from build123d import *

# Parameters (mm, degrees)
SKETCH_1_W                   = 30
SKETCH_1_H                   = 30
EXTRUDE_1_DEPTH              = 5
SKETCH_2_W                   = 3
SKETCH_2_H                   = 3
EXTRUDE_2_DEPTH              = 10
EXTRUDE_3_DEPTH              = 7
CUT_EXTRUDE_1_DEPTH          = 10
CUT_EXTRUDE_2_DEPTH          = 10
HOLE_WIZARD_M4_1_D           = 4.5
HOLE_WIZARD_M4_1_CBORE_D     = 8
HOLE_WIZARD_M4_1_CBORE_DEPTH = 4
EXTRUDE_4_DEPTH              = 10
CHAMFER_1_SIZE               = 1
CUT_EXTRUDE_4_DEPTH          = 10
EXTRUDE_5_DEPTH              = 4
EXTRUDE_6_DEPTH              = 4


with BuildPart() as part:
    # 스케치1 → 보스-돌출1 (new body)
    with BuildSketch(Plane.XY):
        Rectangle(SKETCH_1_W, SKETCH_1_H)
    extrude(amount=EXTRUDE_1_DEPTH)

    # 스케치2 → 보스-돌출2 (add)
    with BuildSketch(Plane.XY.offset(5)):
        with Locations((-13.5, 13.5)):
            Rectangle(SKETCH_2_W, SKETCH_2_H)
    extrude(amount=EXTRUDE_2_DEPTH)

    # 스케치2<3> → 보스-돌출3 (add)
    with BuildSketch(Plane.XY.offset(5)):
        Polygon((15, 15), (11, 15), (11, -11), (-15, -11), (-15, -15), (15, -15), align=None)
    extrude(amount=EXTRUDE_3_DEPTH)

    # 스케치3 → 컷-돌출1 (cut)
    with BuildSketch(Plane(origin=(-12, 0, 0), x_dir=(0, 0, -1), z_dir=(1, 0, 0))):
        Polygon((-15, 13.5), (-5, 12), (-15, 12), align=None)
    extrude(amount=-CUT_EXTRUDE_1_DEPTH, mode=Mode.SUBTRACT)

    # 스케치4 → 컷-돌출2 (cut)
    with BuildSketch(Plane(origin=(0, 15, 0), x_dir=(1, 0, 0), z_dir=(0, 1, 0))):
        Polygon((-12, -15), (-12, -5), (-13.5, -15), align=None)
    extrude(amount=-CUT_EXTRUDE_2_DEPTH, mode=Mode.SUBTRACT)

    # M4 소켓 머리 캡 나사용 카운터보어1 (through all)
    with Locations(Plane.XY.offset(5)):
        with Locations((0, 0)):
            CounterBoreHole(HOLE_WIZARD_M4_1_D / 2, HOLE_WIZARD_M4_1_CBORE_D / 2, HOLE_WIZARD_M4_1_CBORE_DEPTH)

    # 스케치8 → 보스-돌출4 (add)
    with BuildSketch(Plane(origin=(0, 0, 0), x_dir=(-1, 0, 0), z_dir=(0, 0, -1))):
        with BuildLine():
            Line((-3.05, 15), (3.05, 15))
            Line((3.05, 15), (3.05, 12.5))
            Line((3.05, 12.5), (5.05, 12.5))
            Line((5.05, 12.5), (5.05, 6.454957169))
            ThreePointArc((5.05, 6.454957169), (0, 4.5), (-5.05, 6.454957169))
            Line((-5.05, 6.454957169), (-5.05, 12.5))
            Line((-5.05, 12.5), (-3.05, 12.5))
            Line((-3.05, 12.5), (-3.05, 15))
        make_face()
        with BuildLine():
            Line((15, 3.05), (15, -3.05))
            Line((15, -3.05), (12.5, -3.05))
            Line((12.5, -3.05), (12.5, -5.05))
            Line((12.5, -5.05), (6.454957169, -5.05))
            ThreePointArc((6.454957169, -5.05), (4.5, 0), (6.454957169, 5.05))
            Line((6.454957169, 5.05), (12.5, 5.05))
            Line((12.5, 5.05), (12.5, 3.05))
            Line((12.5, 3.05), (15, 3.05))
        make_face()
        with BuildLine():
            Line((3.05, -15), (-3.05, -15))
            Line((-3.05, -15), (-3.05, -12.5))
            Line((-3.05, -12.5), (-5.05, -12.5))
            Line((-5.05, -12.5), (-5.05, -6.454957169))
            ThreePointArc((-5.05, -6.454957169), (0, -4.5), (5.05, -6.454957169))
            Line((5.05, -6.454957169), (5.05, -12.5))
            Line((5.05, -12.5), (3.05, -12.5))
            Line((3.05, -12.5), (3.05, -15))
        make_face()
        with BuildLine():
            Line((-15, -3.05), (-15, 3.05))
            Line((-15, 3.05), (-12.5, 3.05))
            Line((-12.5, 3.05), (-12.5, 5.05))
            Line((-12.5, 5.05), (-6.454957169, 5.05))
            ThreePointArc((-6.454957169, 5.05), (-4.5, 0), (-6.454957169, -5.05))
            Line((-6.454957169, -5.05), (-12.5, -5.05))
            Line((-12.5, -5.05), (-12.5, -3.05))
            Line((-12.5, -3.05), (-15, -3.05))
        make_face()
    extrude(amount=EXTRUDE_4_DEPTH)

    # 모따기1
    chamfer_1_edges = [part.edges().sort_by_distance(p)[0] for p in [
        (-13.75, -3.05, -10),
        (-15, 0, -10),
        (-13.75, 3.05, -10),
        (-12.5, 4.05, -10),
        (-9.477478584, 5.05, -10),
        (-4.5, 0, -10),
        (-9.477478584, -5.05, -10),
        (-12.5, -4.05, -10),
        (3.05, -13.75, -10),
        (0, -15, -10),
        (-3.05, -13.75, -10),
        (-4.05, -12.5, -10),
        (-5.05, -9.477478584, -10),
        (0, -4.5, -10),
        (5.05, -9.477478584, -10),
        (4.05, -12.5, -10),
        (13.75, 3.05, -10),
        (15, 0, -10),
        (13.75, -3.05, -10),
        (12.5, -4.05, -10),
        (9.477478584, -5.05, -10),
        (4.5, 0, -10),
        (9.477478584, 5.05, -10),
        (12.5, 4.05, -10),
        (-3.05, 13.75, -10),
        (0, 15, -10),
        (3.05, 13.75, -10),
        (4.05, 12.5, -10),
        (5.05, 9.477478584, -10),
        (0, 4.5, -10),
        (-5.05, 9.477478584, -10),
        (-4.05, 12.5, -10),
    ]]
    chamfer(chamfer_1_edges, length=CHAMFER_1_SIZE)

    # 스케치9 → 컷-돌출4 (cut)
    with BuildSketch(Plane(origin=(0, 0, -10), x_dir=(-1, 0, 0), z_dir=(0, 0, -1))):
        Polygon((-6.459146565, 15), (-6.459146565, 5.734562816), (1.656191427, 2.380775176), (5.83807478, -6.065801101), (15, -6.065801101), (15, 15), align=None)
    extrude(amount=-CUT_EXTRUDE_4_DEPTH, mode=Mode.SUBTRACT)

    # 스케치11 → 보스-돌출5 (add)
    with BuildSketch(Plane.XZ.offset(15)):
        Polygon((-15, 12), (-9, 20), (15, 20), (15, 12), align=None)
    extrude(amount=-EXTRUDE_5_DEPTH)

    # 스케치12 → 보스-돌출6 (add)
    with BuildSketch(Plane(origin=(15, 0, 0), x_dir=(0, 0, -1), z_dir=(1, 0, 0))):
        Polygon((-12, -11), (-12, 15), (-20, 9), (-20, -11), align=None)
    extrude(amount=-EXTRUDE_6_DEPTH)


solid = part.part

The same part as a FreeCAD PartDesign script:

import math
import FreeCAD as App
import Part
import Sketcher
from FreeCAD import Vector
Q = App.Units.Quantity


def edges_at(feature, points):
    """Names of the edges that pass closest to the given points."""
    edges = feature.Shape.Edges
    near = lambda p: min(range(len(edges)), key=lambda i: edges[i].distToShape(Part.Vertex(*p))[0])
    return sorted({f"Edge{near(p) + 1}" for p in points})


def add_polygon(sketch, points):
    """Adds a closed chain of lines whose ends are joined by coincident constraints."""
    first, n = sketch.GeometryCount, len(points)
    for a, b in zip(points, points[1:] + points[:1]):
        sketch.addGeometry(Part.LineSegment(App.Vector(*a, 0), App.Vector(*b, 0)), False)
    for i in range(n):
        sketch.addConstraint(Sketcher.Constraint("Coincident", first + i, 2, first + (i + 1) % n, 1))

doc = App.newDocument("Part")
body = doc.addObject("PartDesign::Body", "Body")

# Sketch on XY plane
sketch1 = body.newObject("Sketcher::SketchObject", "Sketch")
sketch1.AttachmentSupport = (doc.getObject("XY_Plane"), [""])
sketch1.MapMode = "FlatFace"
add_polygon(sketch1, [(-15, 15), (-15, -15), (15, -15), (15, 15)])  # lines 0-3
sketch1.addConstraint([
    Sketcher.Constraint("Vertical", 0),
    Sketcher.Constraint("Horizontal", 1),
    Sketcher.Constraint("Vertical", 2),
    Sketcher.Constraint("Horizontal", 3),
    Sketcher.Constraint("Symmetric", 0, 2, 2, 2, -1, 1),
    Sketcher.Constraint("Equal", 3, 0),
    Sketcher.Constraint("DistanceX", 1, 1, 1, 2, Q("30 mm")),
])
pad1 = body.newObject("PartDesign::Pad", "Pad")
pad1.Profile = sketch1
pad1.Length = 5

# Sketch on XY plane
sketch2 = body.newObject("Sketcher::SketchObject", "Sketch001")
sketch2.AttachmentSupport = (doc.getObject("XY_Plane"), [""])
sketch2.MapMode = "FlatFace"
sketch2.AttachmentOffset = App.Placement(Vector(0, 0, 5), App.Rotation())
add_polygon(sketch2, [(-15, 15), (-15, 12), (-12, 12), (-12, 15)])  # lines 0-3
sketch2.addConstraint([
    Sketcher.Constraint("Vertical", 0),
    Sketcher.Constraint("Horizontal", 1),
    Sketcher.Constraint("Vertical", 2),
    Sketcher.Constraint("Horizontal", 3),
    Sketcher.Constraint("Equal", 3, 0),
    Sketcher.Constraint("DistanceX", 1, 1, 1, 2, Q("3 mm")),
    Sketcher.Constraint("DistanceX", 0, 2, -1, 1, Q("15 mm")),
    Sketcher.Constraint("DistanceY", -1, 1, 0, 2, Q("12 mm")),
])
pad2 = body.newObject("PartDesign::Pad", "Pad001")
pad2.Profile = sketch2
pad2.Length = 10

# Sketch on XY plane
sketch3 = body.newObject("Sketcher::SketchObject", "Sketch002")
sketch3.AttachmentSupport = (doc.getObject("XY_Plane"), [""])
sketch3.MapMode = "FlatFace"
sketch3.AttachmentOffset = App.Placement(Vector(0, 0, 5), App.Rotation())
add_polygon(sketch3, [(15, 15), (11, 15), (11, -11), (-15, -11), (-15, -15), (15, -15)])  # lines 0-5
sketch3.addConstraint([
    Sketcher.Constraint("Horizontal", 0),
    Sketcher.Constraint("Vertical", 1),
    Sketcher.Constraint("Horizontal", 2),
    Sketcher.Constraint("Vertical", 3),
    Sketcher.Constraint("Horizontal", 4),
    Sketcher.Constraint("Vertical", 5),
    Sketcher.Constraint("Symmetric", 3, 2, 5, 2, -1, 1),
    Sketcher.Constraint("Equal", 2, 1),
    Sketcher.Constraint("Equal", 0, 3),
    Sketcher.Constraint("DistanceX", 0, 2, 0, 1, Q("4 mm")),
    Sketcher.Constraint("DistanceX", 2, 2, 2, 1, Q("26 mm")),
])
pad3 = body.newObject("PartDesign::Pad", "Pad002")
pad3.Profile = sketch3
pad3.Length = 7

# Sketch on YZ plane
sketch4 = body.newObject("Sketcher::SketchObject", "Sketch003")
sketch4.AttachmentSupport = (doc.getObject("YZ_Plane"), [""])
sketch4.MapMode = "FlatFace"
sketch4.AttachmentOffset = App.Placement(Vector(0, 0, -12), App.Rotation())
add_polygon(sketch4, [(12, 5), (13.5, 15), (12, 15)])  # lines 0-2
sketch4.addConstraint([
    Sketcher.Constraint("Horizontal", 1),
    Sketcher.Constraint("Vertical", 2),
    Sketcher.Constraint("DistanceY", 2, 2, 2, 1, Q("10 mm")),
    Sketcher.Constraint("DistanceX", 1, 2, 1, 1, Q("1.5 mm")),
    Sketcher.Constraint("DistanceY", -1, 1, 0, 2, Q("15 mm")),
    Sketcher.Constraint("DistanceX", -1, 1, 1, 2, Q("12 mm")),
])
pocket1 = body.newObject("PartDesign::Pocket", "Pocket")
pocket1.Profile = sketch4
pocket1.Length = 10

# Sketch on XZ plane
sketch5 = body.newObject("Sketcher::SketchObject", "Sketch004")
sketch5.AttachmentSupport = (doc.getObject("XZ_Plane"), [""])
sketch5.MapMode = "FlatFace"
sketch5.AttachmentOffset = App.Placement(Vector(0, 0, -15), App.Rotation())
add_polygon(sketch5, [(-12, 15), (-12, 5), (-13.5, 15)])  # lines 0-2
sketch5.addConstraint([
    Sketcher.Constraint("Vertical", 0),
    Sketcher.Constraint("Horizontal", 2),
    Sketcher.Constraint("DistanceY", 0, 2, 0, 1, Q("10 mm")),
    Sketcher.Constraint("DistanceX", 2, 1, 2, 2, Q("1.5 mm")),
    Sketcher.Constraint("DistanceX", 0, 2, -1, 1, Q("12 mm")),
    Sketcher.Constraint("DistanceY", -1, 1, 0, 2, Q("5 mm")),
])
pocket2 = body.newObject("PartDesign::Pocket", "Pocket001")
pocket2.Profile = sketch5
pocket2.Length = 10
pocket2.Reversed = True

# Sketch on XY plane
sketch6 = body.newObject("Sketcher::SketchObject", "Sketch005")
sketch6.AttachmentSupport = (doc.getObject("XY_Plane"), [""])
sketch6.MapMode = "FlatFace"
sketch6.AttachmentOffset = App.Placement(Vector(0, 0, 5), App.Rotation())
sketch6.addGeometry(Part.Circle(Vector(0, 0, 0), Vector(0, 0, 1), 2.2), False)
sketch6.addConstraint([
    Sketcher.Constraint("Coincident", 0, 3, -1, 1),
    Sketcher.Constraint("Diameter", 0, Q("4.5 mm")),
])
doc.recompute()
hole = body.newObject("PartDesign::Hole", "Hole")
hole.Profile = sketch6
hole.ThreadType = "None"
hole.Diameter = 4.5
hole.DepthType = "ThroughAll"
hole.HoleCutType = "Counterbore"
hole.HoleCutDiameter = 8
hole.HoleCutDepth = 4

# Sketch on XY plane
sketch7 = body.newObject("Sketcher::SketchObject", "Sketch006")
sketch7.AttachmentSupport = (doc.getObject("XY_Plane"), [""])
sketch7.MapMode = "FlatFace"
sketch7.addGeometry([
    Part.LineSegment(Vector(-3, 15, 0), Vector(3, 15, 0)),  # 0
    Part.LineSegment(Vector(3, 15, 0), Vector(3, 12.5, 0)),  # 1
    Part.LineSegment(Vector(3, 12.5, 0), Vector(5, 12.5, 0)),  # 2
    Part.LineSegment(Vector(5, 12.5, 0), Vector(5, 6.5, 0)),  # 3
    Part.ArcOfCircle(Part.Circle(Vector(0, 12, 0), Vector(0, 0, 1), 7.5), math.radians(-132), math.radians(-48)),  # 4
    Part.LineSegment(Vector(-5, 6.5, 0), Vector(-5, 12.5, 0)),  # 5
    Part.LineSegment(Vector(-5, 12.5, 0), Vector(-3, 12.5, 0)),  # 6
    Part.LineSegment(Vector(-3, 12.5, 0), Vector(-3, 15, 0)),  # 7
    Part.LineSegment(Vector(-15, -3, 0), Vector(-15, 3, 0)),  # 8
    Part.LineSegment(Vector(-15, 3, 0), Vector(-12.5, 3, 0)),  # 9
    Part.LineSegment(Vector(-12.5, 3, 0), Vector(-12.5, 5, 0)),  # 10
    Part.LineSegment(Vector(-12.5, 5, 0), Vector(-6.5, 5, 0)),  # 11
    Part.ArcOfCircle(Part.Circle(Vector(-12, 0, 0), Vector(0, 0, 1), 7.5), math.radians(-42), math.radians(42)),  # 12
    Part.LineSegment(Vector(-6.5, -5, 0), Vector(-12.5, -5, 0)),  # 13
    Part.LineSegment(Vector(-12.5, -5, 0), Vector(-12.5, -3, 0)),  # 14
    Part.LineSegment(Vector(-12.5, -3, 0), Vector(-15, -3, 0)),  # 15
    Part.LineSegment(Vector(3, -15, 0), Vector(-3, -15, 0)),  # 16
    Part.LineSegment(Vector(-3, -15, 0), Vector(-3, -12.5, 0)),  # 17
    Part.LineSegment(Vector(-3, -12.5, 0), Vector(-5, -12.5, 0)),  # 18
    Part.LineSegment(Vector(-5, -12.5, 0), Vector(-5, -6.5, 0)),  # 19
    Part.ArcOfCircle(Part.Circle(Vector(0, -12, 0), Vector(0, 0, 1), 7.5), math.radians(48), math.radians(132)),  # 20
    Part.LineSegment(Vector(5, -6.5, 0), Vector(5, -12.5, 0)),  # 21
    Part.LineSegment(Vector(5, -12.5, 0), Vector(3, -12.5, 0)),  # 22
    Part.LineSegment(Vector(3, -12.5, 0), Vector(3, -15, 0)),  # 23
    Part.LineSegment(Vector(15, 3, 0), Vector(15, -3, 0)),  # 24
    Part.LineSegment(Vector(15, -3, 0), Vector(12.5, -3, 0)),  # 25
    Part.LineSegment(Vector(12.5, -3, 0), Vector(12.5, -5, 0)),  # 26
    Part.LineSegment(Vector(12.5, -5, 0), Vector(6.5, -5, 0)),  # 27
    Part.ArcOfCircle(Part.Circle(Vector(12, 0, 0), Vector(0, 0, 1), 7.5), math.radians(138), math.radians(222)),  # 28
    Part.LineSegment(Vector(6.5, 5, 0), Vector(12.5, 5, 0)),  # 29
    Part.LineSegment(Vector(12.5, 5, 0), Vector(12.5, 3, 0)),  # 30
    Part.LineSegment(Vector(12.5, 3, 0), Vector(15, 3, 0)),  # 31
], False)
sketch7.addConstraint([
    Sketcher.Constraint("Coincident", 0, 2, 1, 1),
    Sketcher.Constraint("Coincident", 1, 2, 2, 1),
    Sketcher.Constraint("Coincident", 2, 2, 3, 1),
    Sketcher.Constraint("Coincident", 3, 2, 4, 2),
    Sketcher.Constraint("Coincident", 4, 1, 5, 1),
    Sketcher.Constraint("Coincident", 5, 2, 6, 1),
    Sketcher.Constraint("Coincident", 6, 2, 7, 1),
    Sketcher.Constraint("Coincident", 7, 2, 0, 1),
    Sketcher.Constraint("Coincident", 8, 2, 9, 1),
    Sketcher.Constraint("Coincident", 9, 2, 10, 1),
    Sketcher.Constraint("Coincident", 10, 2, 11, 1),
    Sketcher.Constraint("Coincident", 11, 2, 12, 2),
    Sketcher.Constraint("Coincident", 12, 1, 13, 1),
    Sketcher.Constraint("Coincident", 13, 2, 14, 1),
    Sketcher.Constraint("Coincident", 14, 2, 15, 1),
    Sketcher.Constraint("Coincident", 15, 2, 8, 1),
    Sketcher.Constraint("Coincident", 16, 2, 17, 1),
    Sketcher.Constraint("Coincident", 17, 2, 18, 1),
    Sketcher.Constraint("Coincident", 18, 2, 19, 1),
    Sketcher.Constraint("Coincident", 19, 2, 20, 2),
    Sketcher.Constraint("Coincident", 20, 1, 21, 1),
    Sketcher.Constraint("Coincident", 21, 2, 22, 1),
    Sketcher.Constraint("Coincident", 22, 2, 23, 1),
    Sketcher.Constraint("Coincident", 23, 2, 16, 1),
    Sketcher.Constraint("Coincident", 24, 2, 25, 1),
    Sketcher.Constraint("Coincident", 25, 2, 26, 1),
    Sketcher.Constraint("Coincident", 26, 2, 27, 1),
    Sketcher.Constraint("Coincident", 27, 2, 28, 2),
    Sketcher.Constraint("Coincident", 28, 1, 29, 1),
    Sketcher.Constraint("Coincident", 29, 2, 30, 1),
    Sketcher.Constraint("Coincident", 30, 2, 31, 1),
    Sketcher.Constraint("Coincident", 31, 2, 24, 1),
    Sketcher.Constraint("Horizontal", 0),
    Sketcher.Constraint("Vertical", 1),
    Sketcher.Constraint("Horizontal", 2),
    Sketcher.Constraint("Vertical", 3),
    Sketcher.Constraint("Vertical", 5),
    Sketcher.Constraint("Horizontal", 6),
    Sketcher.Constraint("Vertical", 7),
    Sketcher.Constraint("Vertical", 8),
    Sketcher.Constraint("Horizontal", 9),
    Sketcher.Constraint("Vertical", 10),
    Sketcher.Constraint("Horizontal", 11),
    Sketcher.Constraint("Horizontal", 13),
    Sketcher.Constraint("Vertical", 14),
    Sketcher.Constraint("Horizontal", 15),
    Sketcher.Constraint("Horizontal", 16),
    Sketcher.Constraint("Vertical", 17),
    Sketcher.Constraint("Horizontal", 18),
    Sketcher.Constraint("Vertical", 19),
    Sketcher.Constraint("Vertical", 21),
    Sketcher.Constraint("Horizontal", 22),
    Sketcher.Constraint("Vertical", 23),
    Sketcher.Constraint("Vertical", 24),
    Sketcher.Constraint("Horizontal", 25),
    Sketcher.Constraint("Vertical", 26),
    Sketcher.Constraint("Horizontal", 27),
    Sketcher.Constraint("Horizontal", 29),
    Sketcher.Constraint("Vertical", 30),
    Sketcher.Constraint("Horizontal", 31),
    Sketcher.Constraint("Equal", 4, 12),
    Sketcher.Constraint("Equal", 12, 20),
    Sketcher.Constraint("Equal", 20, 28),
    Sketcher.Constraint("Symmetric", 4, 3, 20, 3, -1, 1),
    Sketcher.Constraint("Symmetric", 12, 3, 28, 3, -1, 1),
    Sketcher.Constraint("Symmetric", 0, 2, 16, 2, -1, 1),
    Sketcher.Constraint("Symmetric", 2, 2, 18, 2, -1, 1),
    Sketcher.Constraint("Symmetric", 5, 2, 21, 2, -1, 1),
    Sketcher.Constraint("Symmetric", 8, 2, 24, 2, -1, 1),
    Sketcher.Constraint("Symmetric", 10, 2, 26, 2, -1, 1),
    Sketcher.Constraint("Symmetric", 13, 2, 29, 2, -1, 1),
    Sketcher.Constraint("Symmetric", 3, 2, 4, 1, -2),
    Sketcher.Constraint("Symmetric", 1, 2, 6, 2, -2),
    Sketcher.Constraint("Symmetric", 14, 2, 25, 2, -2),
    Sketcher.Constraint("Symmetric", 12, 1, 27, 2, -2),
    Sketcher.Constraint("Horizontal", 9, 2, 30, 2),
    Sketcher.Constraint("Vertical", 1, 2, 22, 2),
    Sketcher.Constraint("Equal", 31, 1),
    Sketcher.Constraint("Equal", 29, 3),
    Sketcher.Constraint("Equal", 16, 8),
    Sketcher.Constraint("Equal", 22, 10),
    Sketcher.Constraint("Radius", 4, Q("7.5 mm")),
    Sketcher.Constraint("DistanceX", 2, 1, 2, 2, Q("2 mm")),
    Sketcher.Constraint("DistanceX", 0, 1, 0, 2, Q("6.1 mm")),
    Sketcher.Constraint("DistanceX", 9, 1, 9, 2, Q("2.5 mm")),
    Sketcher.Constraint("DistanceY", -1, 1, 4, 3, Q("12 mm")),
    Sketcher.Constraint("DistanceX", 12, 3, -1, 1, Q("12 mm")),
    Sketcher.Constraint("DistanceY", -1, 1, 0, 2, Q("15 mm")),
])
pad4 = body.newObject("PartDesign::Pad", "Pad003")
pad4.Profile = sketch7
pad4.Length = 10
pad4.Reversed = True
doc.recompute()

chamfer = body.newObject("PartDesign::Chamfer", "Chamfer")
chamfer.Base = (pad4, edges_at(pad4, [
    (-13.75, -3.05, -10),
    (-15, 0, -10),
    (-13.75, 3.05, -10),
    (-12.5, 4.05, -10),
    (-9.477, 5.05, -10),
    (-4.5, 0, -10),
    (-9.477, -5.05, -10),
    (-12.5, -4.05, -10),
    (3.05, -13.75, -10),
    (0, -15, -10),
    (-3.05, -13.75, -10),
    (-4.05, -12.5, -10),
    (-5.05, -9.477, -10),
    (0, -4.5, -10),
    (5.05, -9.477, -10),
    (4.05, -12.5, -10),
    (13.75, 3.05, -10),
    (15, 0, -10),
    (13.75, -3.05, -10),
    (12.5, -4.05, -10),
    (9.477, -5.05, -10),
    (4.5, 0, -10),
    (9.477, 5.05, -10),
    (12.5, 4.05, -10),
    (-3.05, 13.75, -10),
    (0, 15, -10),
    (3.05, 13.75, -10),
    (4.05, 12.5, -10),
    (5.05, 9.477, -10),
    (0, 4.5, -10),
    (-5.05, 9.477, -10),
    (-4.05, 12.5, -10),
]))
chamfer.Size = 1

# Sketch on XY plane
sketch8 = body.newObject("Sketcher::SketchObject", "Sketch007")
sketch8.AttachmentSupport = (doc.getObject("XY_Plane"), [""])
sketch8.MapMode = "FlatFace"
sketch8.AttachmentOffset = App.Placement(Vector(0, 0, -10), App.Rotation())
add_polygon(sketch8, [(6, 15), (6, 6), (-2, 2), (-6, -6), (-15, -6), (-15, 15)])  # lines 0-5
sketch8.addConstraint([
    Sketcher.Constraint("Vertical", 0),
    Sketcher.Constraint("Horizontal", 3),
    Sketcher.Constraint("Vertical", 4),
    Sketcher.Constraint("Horizontal", 5),
    Sketcher.Constraint("DistanceX", 3, 2, -1, 1, Q("15 mm")),
    Sketcher.Constraint("DistanceY", -1, 1, 4, 2, Q("15 mm")),
    Sketcher.Constraint("DistanceY", 4, 1, 4, 2, Q("21.065801 mm")),
    Sketcher.Constraint("DistanceX", 3, 2, 3, 1, Q("9.161925 mm")),
    Sketcher.Constraint("DistanceX", 5, 1, 5, 2, Q("21.459147 mm")),
    Sketcher.Constraint("DistanceY", 0, 2, 0, 1, Q("9.265437 mm")),
    Sketcher.Constraint("DistanceX", 1, 2, -1, 1, Q("1.656191 mm")),
    Sketcher.Constraint("Distance", 1, Q("8.781037 mm")),
])
pocket3 = body.newObject("PartDesign::Pocket", "Pocket002")
pocket3.Profile = sketch8
pocket3.Length = 10
pocket3.Reversed = True

# Sketch on XZ plane
sketch9 = body.newObject("Sketcher::SketchObject", "Sketch008")
sketch9.AttachmentSupport = (doc.getObject("XZ_Plane"), [""])
sketch9.MapMode = "FlatFace"
sketch9.AttachmentOffset = App.Placement(Vector(0, 0, 15), App.Rotation())
add_polygon(sketch9, [(-9, 20), (-15, 12), (15, 12), (15, 20)])  # lines 0-3
sketch9.addConstraint([
    Sketcher.Constraint("Horizontal", 1),
    Sketcher.Constraint("Vertical", 2),
    Sketcher.Constraint("Horizontal", 3),
    Sketcher.Constraint("DistanceX", 1, 1, 1, 2, Q("30 mm")),
    Sketcher.Constraint("DistanceX", 3, 2, 3, 1, Q("24 mm")),
    Sketcher.Constraint("DistanceY", 2, 1, 2, 2, Q("8 mm")),
    Sketcher.Constraint("DistanceX", 0, 2, -1, 1, Q("15 mm")),
    Sketcher.Constraint("DistanceY", -1, 1, 0, 2, Q("12 mm")),
])
pad5 = body.newObject("PartDesign::Pad", "Pad004")
pad5.Profile = sketch9
pad5.Length = 4
pad5.Reversed = True

# Sketch on YZ plane
sketch10 = body.newObject("Sketcher::SketchObject", "Sketch009")
sketch10.AttachmentSupport = (doc.getObject("YZ_Plane"), [""])
sketch10.MapMode = "FlatFace"
sketch10.AttachmentOffset = App.Placement(Vector(0, 0, 15), App.Rotation())
add_polygon(sketch10, [(-11, 12), (15, 12), (9, 20), (-11, 20)])  # lines 0-3
sketch10.addConstraint([
    Sketcher.Constraint("Horizontal", 0),
    Sketcher.Constraint("Horizontal", 2),
    Sketcher.Constraint("Vertical", 3),
    Sketcher.Constraint("DistanceX", 0, 1, 0, 2, Q("26 mm")),
    Sketcher.Constraint("DistanceX", 2, 2, 2, 1, Q("20 mm")),
    Sketcher.Constraint("DistanceY", 3, 2, 3, 1, Q("8 mm")),
    Sketcher.Constraint("DistanceX", -1, 1, 0, 2, Q("15 mm")),
    Sketcher.Constraint("DistanceY", -1, 1, 0, 2, Q("12 mm")),
])
pad6 = body.newObject("PartDesign::Pad", "Pad005")
pad6.Profile = sketch10
pad6.Length = 4
pad6.Reversed = True

doc.recompute()
